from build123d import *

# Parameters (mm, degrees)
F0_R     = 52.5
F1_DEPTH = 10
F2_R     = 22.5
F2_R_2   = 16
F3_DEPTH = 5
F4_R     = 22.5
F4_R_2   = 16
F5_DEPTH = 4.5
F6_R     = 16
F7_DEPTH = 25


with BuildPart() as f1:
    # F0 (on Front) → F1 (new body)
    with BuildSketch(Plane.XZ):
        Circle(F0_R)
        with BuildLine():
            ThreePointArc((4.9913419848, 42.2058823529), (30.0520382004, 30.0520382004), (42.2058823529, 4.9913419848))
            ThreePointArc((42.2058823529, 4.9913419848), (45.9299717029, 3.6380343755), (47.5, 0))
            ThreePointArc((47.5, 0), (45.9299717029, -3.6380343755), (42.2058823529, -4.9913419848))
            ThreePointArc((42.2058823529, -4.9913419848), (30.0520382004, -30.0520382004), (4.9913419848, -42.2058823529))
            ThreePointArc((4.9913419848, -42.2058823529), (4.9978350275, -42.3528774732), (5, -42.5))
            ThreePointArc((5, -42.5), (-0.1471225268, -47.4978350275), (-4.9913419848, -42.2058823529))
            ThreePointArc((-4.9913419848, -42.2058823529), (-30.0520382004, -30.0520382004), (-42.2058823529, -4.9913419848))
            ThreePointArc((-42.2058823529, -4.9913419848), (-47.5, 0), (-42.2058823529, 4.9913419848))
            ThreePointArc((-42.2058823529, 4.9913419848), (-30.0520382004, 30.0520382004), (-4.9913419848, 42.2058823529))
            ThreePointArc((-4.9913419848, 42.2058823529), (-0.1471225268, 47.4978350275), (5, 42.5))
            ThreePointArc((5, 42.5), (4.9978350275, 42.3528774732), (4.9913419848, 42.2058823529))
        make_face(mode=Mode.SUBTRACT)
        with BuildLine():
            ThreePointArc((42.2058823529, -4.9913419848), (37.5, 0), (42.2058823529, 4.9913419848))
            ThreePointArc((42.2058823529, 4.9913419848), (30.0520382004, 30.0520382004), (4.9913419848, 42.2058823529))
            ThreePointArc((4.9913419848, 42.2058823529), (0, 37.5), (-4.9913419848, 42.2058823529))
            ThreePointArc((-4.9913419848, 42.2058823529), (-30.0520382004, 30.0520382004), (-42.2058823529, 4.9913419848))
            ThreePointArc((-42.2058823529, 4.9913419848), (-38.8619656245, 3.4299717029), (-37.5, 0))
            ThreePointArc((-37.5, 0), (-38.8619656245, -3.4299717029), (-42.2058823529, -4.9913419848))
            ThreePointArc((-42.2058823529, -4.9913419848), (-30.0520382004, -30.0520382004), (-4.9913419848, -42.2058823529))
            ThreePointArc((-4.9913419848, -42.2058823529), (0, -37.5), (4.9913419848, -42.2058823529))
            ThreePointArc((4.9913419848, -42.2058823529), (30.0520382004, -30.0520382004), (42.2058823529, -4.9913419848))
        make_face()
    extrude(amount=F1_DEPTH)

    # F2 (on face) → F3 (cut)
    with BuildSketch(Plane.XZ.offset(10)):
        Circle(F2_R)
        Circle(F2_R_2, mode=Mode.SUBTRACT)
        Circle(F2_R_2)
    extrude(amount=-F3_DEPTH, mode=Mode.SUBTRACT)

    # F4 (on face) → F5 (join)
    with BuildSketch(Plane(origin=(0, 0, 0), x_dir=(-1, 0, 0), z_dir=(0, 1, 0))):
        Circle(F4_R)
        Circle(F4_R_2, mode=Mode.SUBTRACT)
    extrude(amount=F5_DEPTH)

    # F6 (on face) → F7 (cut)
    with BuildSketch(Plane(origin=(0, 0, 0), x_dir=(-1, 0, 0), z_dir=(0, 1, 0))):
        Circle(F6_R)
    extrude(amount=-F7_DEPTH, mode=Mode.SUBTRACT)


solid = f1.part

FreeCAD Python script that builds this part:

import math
import FreeCAD as App
import Part
import Sketcher
from FreeCAD import Vector
Q = App.Units.Quantity

doc = App.newDocument("Part")
body = doc.addObject("PartDesign::Body", "Body")

# Sketch on XZ plane
sketch1 = body.newObject("Sketcher::SketchObject", "Sketch")
sketch1.AttachmentSupport = (doc.getObject("XZ_Plane"), [""])
sketch1.MapMode = "FlatFace"
sketch1.addGeometry([
    Part.Circle(Vector(0, 0, 0), Vector(0, 0, 1), 52.5),  # 0
    Part.ArcOfCircle(Part.Circle(Vector(0, 42.5, 0), Vector(0, 0, 1), 5), math.radians(-3.37), math.radians(0)),  # 1
    Part.ArcOfCircle(Part.Circle(Vector(0, 42.5, 0), Vector(0, 0, 1), 5), math.radians(-177), math.radians(-3)),  # 2
    Part.ArcOfCircle(Part.Circle(Vector(0, 42.5, 0), Vector(0, 0, 1), 5), math.radians(0), math.radians(183)),  # 3
    Part.ArcOfCircle(Part.Circle(Vector(-42.5, 0, 0), Vector(0, 0, 1), 5), math.radians(87), math.radians(273)),  # 4
    Part.ArcOfCircle(Part.Circle(Vector(-42.5, 0, 0), Vector(0, 0, 1), 5), math.radians(0), math.radians(87)),  # 5
    Part.ArcOfCircle(Part.Circle(Vector(-42.5, 0, 0), Vector(0, 0, 1), 5), math.radians(-87), math.radians(0)),  # 6
    Part.ArcOfCircle(Part.Circle(Vector(0, -42.5, 0), Vector(0, 0, 1), 5), math.radians(177), math.radians(360)),  # 7
    Part.ArcOfCircle(Part.Circle(Vector(0, -42.5, 0), Vector(0, 0, 1), 5), math.radians(3), math.radians(177)),  # 8
    Part.ArcOfCircle(Part.Circle(Vector(0, -42.5, 0), Vector(0, 0, 1), 5), math.radians(0), math.radians(3.37)),  # 9
    Part.ArcOfCircle(Part.Circle(Vector(42.5, 0, 0), Vector(0, 0, 1), 5), math.radians(-93), math.radians(0)),  # 10
    Part.ArcOfCircle(Part.Circle(Vector(42.5, 0, 0), Vector(0, 0, 1), 5), math.radians(93), math.radians(267)),  # 11
    Part.ArcOfCircle(Part.Circle(Vector(42.5, 0, 0), Vector(0, 0, 1), 5), math.radians(0), math.radians(93)),  # 12
], False)
sketch1.addConstraint([
    Sketcher.Constraint("Tangent", 1, 1, 2, 2),
    Sketcher.Constraint("Tangent", 2, 1, 3, 2),
    Sketcher.Constraint("Tangent", 3, 1, 1, 2),
    Sketcher.Constraint("Tangent", 4, 1, 5, 2),
    Sketcher.Constraint("Tangent", 5, 1, 6, 2),
    Sketcher.Constraint("Tangent", 6, 1, 4, 2),
    Sketcher.Constraint("Tangent", 7, 1, 8, 2),
    Sketcher.Constraint("Tangent", 8, 1, 9, 2),
    Sketcher.Constraint("Tangent", 9, 1, 7, 2),
    Sketcher.Constraint("Tangent", 10, 1, 11, 2),
    Sketcher.Constraint("Tangent", 11, 1, 12, 2),
    Sketcher.Constraint("Tangent", 12, 1, 10, 2),
    Sketcher.Constraint("Coincident", 0, 3, -1, 1),
    Sketcher.Constraint("Equal", 3, 4),
    Sketcher.Constraint("Equal", 6, 7),
    Sketcher.Constraint("Equal", 9, 10),
    Sketcher.Constraint("Symmetric", 1, 3, 7, 3, -1, 1),
    Sketcher.Constraint("Symmetric", 4, 3, 10, 3, -1, 1),
    Sketcher.Constraint("Symmetric", 1, 1, 2, 1, -2),
    Sketcher.Constraint("Symmetric", 6, 1, 10, 1, -2),
    Sketcher.Constraint("PointOnObject", 5, 1, -1),
    Sketcher.Constraint("PointOnObject", 12, 1, -1),
    Sketcher.Constraint("Horizontal", 2, 3, 3, 1),
    Sketcher.Constraint("Horizontal", 7, 1, 8, 1),
    Sketcher.Constraint("Horizontal", 8, 3, 9, 1),
    Sketcher.Constraint("Horizontal", 4, 1, 11, 1),
    Sketcher.Constraint("Vertical", 4, 1, 6, 1),
    Sketcher.Constraint("Vertical", 2, 1, 7, 1),
    Sketcher.Constraint("Diameter", 0, Q("105 mm")),
    Sketcher.Constraint("Radius", 1, Q("5 mm")),
    Sketcher.Constraint("DistanceY", 7, 3, 1, 3, Q("85 mm")),
    Sketcher.Constraint("DistanceX", 4, 3, -1, 1, Q("42.5 mm")),
    Sketcher.Constraint("DistanceX", -1, 1, 1, 1, Q("4.991342 mm")),
    Sketcher.Constraint("DistanceY", -1, 1, 4, 1, Q("4.991342 mm")),
])
pad1 = body.newObject("PartDesign::Pad", "Pad")
pad1.Profile = sketch1
pad1.Length = 10

# Sketch on XZ plane
sketch2 = body.newObject("Sketcher::SketchObject", "Sketch001")
sketch2.AttachmentSupport = (doc.getObject("XZ_Plane"), [""])
sketch2.MapMode = "FlatFace"
sketch2.AttachmentOffset = App.Placement(Vector(0, 0, 10), App.Rotation())
sketch2.addGeometry(Part.Circle(Vector(0, 0, 0), Vector(0, 0, 1), 22), False)
sketch2.addConstraint([
    Sketcher.Constraint("Coincident", 0, 3, -1, 1),
    Sketcher.Constraint("Diameter", 0, Q("45 mm")),
])
pocket1 = body.newObject("PartDesign::Pocket", "Pocket")
pocket1.Profile = sketch2
pocket1.Length = 5

# Sketch on XZ plane
sketch3 = body.newObject("Sketcher::SketchObject", "Sketch002")
sketch3.AttachmentSupport = (doc.getObject("XZ_Plane"), [""])
sketch3.MapMode = "FlatFace"
sketch3.addGeometry([
    Part.Circle(Vector(0, 0, 0), Vector(0, 0, 1), 22),
    Part.Circle(Vector(0, 0, 0), Vector(0, 0, 1), 16),
], False)
sketch3.addConstraint([
    Sketcher.Constraint("Coincident", 0, 3, -1, 1),
    Sketcher.Constraint("Coincident", 1, 3, -1, 1),
    Sketcher.Constraint("Diameter", 0, Q("45 mm")),
    Sketcher.Constraint("Diameter", 1, Q("32 mm")),
])
pad2 = body.newObject("PartDesign::Pad", "Pad001")
pad2.Profile = sketch3
pad2.Length = 4.5
pad2.Reversed = True

# Sketch on XZ plane
sketch4 = body.newObject("Sketcher::SketchObject", "Sketch003")
sketch4.AttachmentSupport = (doc.getObject("XZ_Plane"), [""])
sketch4.MapMode = "FlatFace"
sketch4.addGeometry(Part.Circle(Vector(0, 0, 0), Vector(0, 0, 1), 16), False)
sketch4.addConstraint([
    Sketcher.Constraint("Coincident", 0, 3, -1, 1),
    Sketcher.Constraint("Diameter", 0, Q("32 mm")),
])
pocket2 = body.newObject("PartDesign::Pocket", "Pocket001")
pocket2.Profile = sketch4
pocket2.Length = 25
pocket2.Reversed = True

doc.recompute()
